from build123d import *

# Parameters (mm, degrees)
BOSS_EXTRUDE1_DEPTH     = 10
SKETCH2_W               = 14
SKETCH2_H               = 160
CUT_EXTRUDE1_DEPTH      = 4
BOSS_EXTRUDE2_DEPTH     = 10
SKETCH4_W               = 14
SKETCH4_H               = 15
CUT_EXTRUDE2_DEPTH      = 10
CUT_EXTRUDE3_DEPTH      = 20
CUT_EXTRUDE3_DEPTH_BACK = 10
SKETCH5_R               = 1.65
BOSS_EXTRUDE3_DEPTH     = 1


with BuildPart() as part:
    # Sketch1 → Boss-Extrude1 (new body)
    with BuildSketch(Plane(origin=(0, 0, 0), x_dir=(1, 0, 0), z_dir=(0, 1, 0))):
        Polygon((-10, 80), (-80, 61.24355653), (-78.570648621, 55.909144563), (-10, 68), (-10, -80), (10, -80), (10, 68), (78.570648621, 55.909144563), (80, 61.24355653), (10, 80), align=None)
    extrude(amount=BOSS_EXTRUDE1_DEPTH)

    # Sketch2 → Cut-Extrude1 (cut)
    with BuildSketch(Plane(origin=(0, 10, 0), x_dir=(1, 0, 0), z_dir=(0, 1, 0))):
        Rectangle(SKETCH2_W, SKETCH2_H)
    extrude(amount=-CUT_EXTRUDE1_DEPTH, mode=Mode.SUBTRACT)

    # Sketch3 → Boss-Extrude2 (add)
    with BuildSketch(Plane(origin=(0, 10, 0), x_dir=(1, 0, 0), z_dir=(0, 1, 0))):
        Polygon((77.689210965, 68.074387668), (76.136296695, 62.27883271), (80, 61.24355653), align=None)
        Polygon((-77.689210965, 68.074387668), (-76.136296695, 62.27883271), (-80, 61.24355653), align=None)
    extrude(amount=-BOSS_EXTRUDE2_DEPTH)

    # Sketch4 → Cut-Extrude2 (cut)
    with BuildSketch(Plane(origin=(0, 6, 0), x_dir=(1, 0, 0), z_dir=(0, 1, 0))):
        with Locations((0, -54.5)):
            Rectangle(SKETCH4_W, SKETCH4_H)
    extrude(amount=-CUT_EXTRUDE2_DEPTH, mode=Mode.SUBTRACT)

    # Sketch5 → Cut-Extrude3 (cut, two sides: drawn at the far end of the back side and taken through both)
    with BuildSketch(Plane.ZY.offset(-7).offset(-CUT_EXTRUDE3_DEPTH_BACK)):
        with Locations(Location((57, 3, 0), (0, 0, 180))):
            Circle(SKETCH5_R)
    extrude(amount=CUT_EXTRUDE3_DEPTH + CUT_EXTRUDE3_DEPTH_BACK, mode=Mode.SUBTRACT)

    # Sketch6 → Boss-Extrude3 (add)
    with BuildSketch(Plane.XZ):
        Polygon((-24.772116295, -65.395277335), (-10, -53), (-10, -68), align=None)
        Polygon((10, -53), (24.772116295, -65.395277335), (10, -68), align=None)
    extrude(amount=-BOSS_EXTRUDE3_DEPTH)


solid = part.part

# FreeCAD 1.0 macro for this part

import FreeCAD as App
import Part
import Sketcher
Q = App.Units.Quantity

doc = App.newDocument("Part")
params = doc.addObject("Spreadsheet::Sheet", "Params")
for row, (alias, value) in enumerate([
    ("sketch1_width", "20 mm"),
    ("sketch1_height", "148 mm"),
    ("pad1_length", "10 mm"),
    ("sketch2_width", "14 mm"),
    ("sketch2_height", "160 mm"),
    ("pocket1_length", "4 mm"),
    ("sketch3_length", "6 mm"),
    ("sketch3_length2", "4 mm"),
    ("pad2_length", "10 mm"),
    ("sketch4_width", "14 mm"),
    ("sketch4_height", "15 mm"),
    ("pocket2_length", "10 mm"),
    ("sketch5_diameter", "3.3 mm"),
    ("sketch6_height", "15 mm"),
    ("pad3_length", "1 mm"),
], start=1):
    params.set(f"A{row}", alias)
    params.set(f"B{row}", "=" + value)
    params.setAlias(f"B{row}", alias)

body = doc.addObject("PartDesign::Body", "Body")

# Sketch on XZ plane
sketch1 = body.newObject("Sketcher::SketchObject", "Sketch")
sketch1.AttachmentSupport = (doc.getObject("XZ_Plane"), [""])
sketch1.MapMode = "FlatFace"
sketch1.addGeometry([
    Part.LineSegment(App.Vector(-10, -80, 0), App.Vector(-80, -61, 0)),  # 0
    Part.LineSegment(App.Vector(-80, -61, 0), App.Vector(-79, -56, 0)),  # 1
    Part.LineSegment(App.Vector(-79, -56, 0), App.Vector(-10, -68, 0)),  # 2
    Part.LineSegment(App.Vector(-10, -68, 0), App.Vector(-10, 80, 0)),  # 3
    Part.LineSegment(App.Vector(-10, 80, 0), App.Vector(10, 80, 0)),  # 4
    Part.LineSegment(App.Vector(10, 80, 0), App.Vector(10, -68, 0)),  # 5
    Part.LineSegment(App.Vector(10, -68, 0), App.Vector(79, -56, 0)),  # 6
    Part.LineSegment(App.Vector(79, -56, 0), App.Vector(80, -61, 0)),  # 7
    Part.LineSegment(App.Vector(80, -61, 0), App.Vector(10, -80, 0)),  # 8
    Part.LineSegment(App.Vector(10, -80, 0), App.Vector(-10, -80, 0)),  # 9
], False)
sketch1.addConstraint([
    Sketcher.Constraint("Coincident", 0, 2, 1, 1),
    Sketcher.Constraint("Coincident", 1, 2, 2, 1),
    Sketcher.Constraint("Coincident", 2, 2, 3, 1),
    Sketcher.Constraint("Coincident", 3, 2, 4, 1),
    Sketcher.Constraint("Coincident", 4, 2, 5, 1),
    Sketcher.Constraint("Coincident", 5, 2, 6, 1),
    Sketcher.Constraint("Coincident", 6, 2, 7, 1),
    Sketcher.Constraint("Coincident", 7, 2, 8, 1),
    Sketcher.Constraint("Coincident", 8, 2, 9, 1),
    Sketcher.Constraint("Coincident", 9, 2, 0, 1),
    Sketcher.Constraint("Vertical", 3),
    Sketcher.Constraint("Horizontal", 4),
    Sketcher.Constraint("Vertical", 5),
    Sketcher.Constraint("Horizontal", 9),
    Sketcher.Constraint("Symmetric", 3, 2, 8, 2, -1, 1),
    Sketcher.Constraint("Symmetric", 2, 2, 5, 2, -2),
    Sketcher.Constraint("Symmetric", 1, 2, 6, 2, -2),
    Sketcher.Constraint("Symmetric", 0, 2, 7, 2, -2),
    Sketcher.Constraint("Perpendicular", 0, 1),
    Sketcher.Constraint("Perpendicular", 7, 8),
    Sketcher.Constraint("DistanceX", 4, 1, 4, 2, 20.0),
    Sketcher.Constraint("DistanceY", 3, 1, 3, 2, 148.0),
    Sketcher.Constraint("Angle", 0, Q("165 deg")),
    Sketcher.Constraint("Angle", 2, Q("-10 deg")),
    Sketcher.Constraint("DistanceX", 0, 2, -1, 1, 80.0),
    Sketcher.Constraint("DistanceY", 2, 2, -1, 1, 68.0),
])
sketch1.setExpression("Constraints[20]", "Params.sketch1_width")
sketch1.setExpression("Constraints[21]", "Params.sketch1_height")
pad1 = body.newObject("PartDesign::Pad", "Pad")
pad1.Profile = sketch1
pad1.setExpression("Length", "Params.pad1_length")
pad1.Reversed = True

# Sketch on XZ plane
sketch2 = body.newObject("Sketcher::SketchObject", "Sketch001")
sketch2.AttachmentSupport = (doc.getObject("XZ_Plane"), [""])
sketch2.MapMode = "FlatFace"
sketch2.AttachmentOffset = App.Placement(App.Vector(0, 0, -10), App.Rotation())
sketch2.addGeometry([
    Part.LineSegment(App.Vector(-7, -80, 0), App.Vector(-7, 80, 0)),
    Part.LineSegment(App.Vector(-7, 80, 0), App.Vector(7, 80, 0)),
    Part.LineSegment(App.Vector(7, 80, 0), App.Vector(7, -80, 0)),
    Part.LineSegment(App.Vector(7, -80, 0), App.Vector(-7, -80, 0)),
], False)
sketch2.addConstraint([
    Sketcher.Constraint("Coincident", 0, 2, 1, 1),
    Sketcher.Constraint("Coincident", 1, 2, 2, 1),
    Sketcher.Constraint("Coincident", 2, 2, 3, 1),
    Sketcher.Constraint("Coincident", 3, 2, 0, 1),
    Sketcher.Constraint("Vertical", 0),
    Sketcher.Constraint("Horizontal", 1),
    Sketcher.Constraint("Vertical", 2),
    Sketcher.Constraint("Horizontal", 3),
    Sketcher.Constraint("Symmetric", 0, 2, 2, 2, -1, 1),
    Sketcher.Constraint("DistanceX", 1, 1, 1, 2, 14.0),
    Sketcher.Constraint("DistanceY", 0, 1, 0, 2, 160.0),
])
sketch2.setExpression("Constraints[9]", "Params.sketch2_width")
sketch2.setExpression("Constraints[10]", "Params.sketch2_height")
pocket1 = body.newObject("PartDesign::Pocket", "Pocket")
pocket1.Profile = sketch2
pocket1.setExpression("Length", "Params.pocket1_length")
pocket1.Reversed = True

# Sketch on XZ plane
sketch3 = body.newObject("Sketcher::SketchObject", "Sketch002")
sketch3.AttachmentSupport = (doc.getObject("XZ_Plane"), [""])
sketch3.MapMode = "FlatFace"
sketch3.AttachmentOffset = App.Placement(App.Vector(0, 0, -10), App.Rotation())
sketch3.addGeometry([
    Part.LineSegment(App.Vector(77.7, -68.1, 0), App.Vector(76.1, -62.3, 0)),  # 0
    Part.LineSegment(App.Vector(76.1, -62.3, 0), App.Vector(80, -61.2, 0)),  # 1
    Part.LineSegment(App.Vector(80, -61.2, 0), App.Vector(77.7, -68.1, 0)),  # 2
    Part.LineSegment(App.Vector(-76.1, -62.3, 0), App.Vector(-77.7, -68.1, 0)),  # 3
    Part.LineSegment(App.Vector(-77.7, -68.1, 0), App.Vector(-80, -61.2, 0)),  # 4
    Part.LineSegment(App.Vector(-80, -61.2, 0), App.Vector(-76.1, -62.3, 0)),  # 5
], False)
sketch3.addConstraint([
    Sketcher.Constraint("Coincident", 0, 2, 1, 1),
    Sketcher.Constraint("Coincident", 1, 2, 2, 1),
    Sketcher.Constraint("Coincident", 2, 2, 0, 1),
    Sketcher.Constraint("Coincident", 3, 2, 4, 1),
    Sketcher.Constraint("Coincident", 4, 2, 5, 1),
    Sketcher.Constraint("Coincident", 5, 2, 3, 1),
    Sketcher.Constraint("Symmetric", 2, 2, 3, 2, -2),
    Sketcher.Constraint("Symmetric", 1, 2, 4, 2, -2),
    Sketcher.Constraint("Symmetric", 0, 2, 5, 2, -2),
    Sketcher.Constraint("Perpendicular", 0, 1),
    Sketcher.Constraint("Angle", 0, Q("105 deg")),
    Sketcher.Constraint("Distance", 0, 6.0),
    Sketcher.Constraint("Distance", 1, 4.0),
    Sketcher.Constraint("DistanceX", -1, 1, 1, 2, 80.0),
    Sketcher.Constraint("DistanceY", 0, 2, -1, 1, 62.278833),
])
sketch3.setExpression("Constraints[11]", "Params.sketch3_length")
sketch3.setExpression("Constraints[12]", "Params.sketch3_length2")
pad2 = body.newObject("PartDesign::Pad", "Pad001")
pad2.Profile = sketch3
pad2.setExpression("Length", "Params.pad2_length")

# Sketch on XZ plane
sketch4 = body.newObject("Sketcher::SketchObject", "Sketch003")
sketch4.AttachmentSupport = (doc.getObject("XZ_Plane"), [""])
sketch4.MapMode = "FlatFace"
sketch4.AttachmentOffset = App.Placement(App.Vector(0, 0, -6), App.Rotation())
sketch4.addGeometry([
    Part.LineSegment(App.Vector(-7, 47, 0), App.Vector(-7, 62, 0)),
    Part.LineSegment(App.Vector(-7, 62, 0), App.Vector(7, 62, 0)),
    Part.LineSegment(App.Vector(7, 62, 0), App.Vector(7, 47, 0)),
    Part.LineSegment(App.Vector(7, 47, 0), App.Vector(-7, 47, 0)),
], False)
sketch4.addConstraint([
    Sketcher.Constraint("Coincident", 0, 2, 1, 1),
    Sketcher.Constraint("Coincident", 1, 2, 2, 1),
    Sketcher.Constraint("Coincident", 2, 2, 3, 1),
    Sketcher.Constraint("Coincident", 3, 2, 0, 1),
    Sketcher.Constraint("Vertical", 0),
    Sketcher.Constraint("Horizontal", 1),
    Sketcher.Constraint("Vertical", 2),
    Sketcher.Constraint("Horizontal", 3),
    Sketcher.Constraint("DistanceX", 1, 1, 1, 2, 14.0),
    Sketcher.Constraint("DistanceY", 0, 1, 0, 2, 15.0),
    Sketcher.Constraint("DistanceX", 0, 2, -1, 1, 7.0),
    Sketcher.Constraint("DistanceY", -1, 1, 0, 2, 62.0),
])
sketch4.setExpression("Constraints[8]", "Params.sketch4_width")
sketch4.setExpression("Constraints[9]", "Params.sketch4_height")
pocket2 = body.newObject("PartDesign::Pocket", "Pocket001")
pocket2.Profile = sketch4
pocket2.setExpression("Length", "Params.pocket2_length")
pocket2.Reversed = True

# Sketch on YZ plane
sketch5 = body.newObject("Sketcher::SketchObject", "Sketch004")
sketch5.AttachmentSupport = (doc.getObject("YZ_Plane"), [""])
sketch5.MapMode = "FlatFace"
sketch5.AttachmentOffset = App.Placement(App.Vector(0, 0, 7), App.Rotation())
sketch5.addGeometry(Part.Circle(App.Vector(3, 57, 0), App.Vector(0, 0, 1), 1.6), False)
sketch5.addConstraint([
    Sketcher.Constraint("Diameter", 0, 3.3),
    Sketcher.Constraint("DistanceX", -1, 1, 0, 3, 3.0),
    Sketcher.Constraint("DistanceY", -1, 1, 0, 3, 57.0),
])
sketch5.setExpression("Constraints[0]", "Params.sketch5_diameter")
pocket3 = body.newObject("PartDesign::Pocket", "Pocket002")
pocket3.Profile = sketch5
pocket3.Type = "ThroughAll"
pocket3.Midplane = True

# Sketch on XZ plane
sketch6 = body.newObject("Sketcher::SketchObject", "Sketch005")
sketch6.AttachmentSupport = (doc.getObject("XZ_Plane"), [""])
sketch6.MapMode = "FlatFace"
sketch6.addGeometry([
    Part.LineSegment(App.Vector(-10, -53, 0), App.Vector(-25, -65, 0)),  # 0
    Part.LineSegment(App.Vector(-25, -65, 0), App.Vector(-10, -68, 0)),  # 1
    Part.LineSegment(App.Vector(-10, -68, 0), App.Vector(-10, -53, 0)),  # 2
    Part.LineSegment(App.Vector(25, -65, 0), App.Vector(10, -53, 0)),  # 3
    Part.LineSegment(App.Vector(10, -53, 0), App.Vector(10, -68, 0)),  # 4
    Part.LineSegment(App.Vector(10, -68, 0), App.Vector(25, -65, 0)),  # 5
], False)
sketch6.addConstraint([
    Sketcher.Constraint("Coincident", 0, 2, 1, 1),
    Sketcher.Constraint("Coincident", 1, 2, 2, 1),
    Sketcher.Constraint("Coincident", 2, 2, 0, 1),
    Sketcher.Constraint("Coincident", 3, 2, 4, 1),
    Sketcher.Constraint("Coincident", 4, 2, 5, 1),
    Sketcher.Constraint("Coincident", 5, 2, 3, 1),
    Sketcher.Constraint("Vertical", 2),
    Sketcher.Constraint("Vertical", 4),
    Sketcher.Constraint("Symmetric", 2, 2, 3, 2, -2),
    Sketcher.Constraint("Symmetric", 0, 2, 5, 2, -2),
    Sketcher.Constraint("Horizontal", 1, 2, 4, 2),
    Sketcher.Constraint("DistanceY", 2, 1, 2, 2, 15.0),
    Sketcher.Constraint("Angle", 0, Q("-140 deg")),
    Sketcher.Constraint("Angle", 1, Q("-10 deg")),
    Sketcher.Constraint("DistanceX", 1, 2, -1, 1, 10.0),
    Sketcher.Constraint("DistanceY", 1, 2, -1, 1, 68.0),
])
sketch6.setExpression("Constraints[11]", "Params.sketch6_height")
pad3 = body.newObject("PartDesign::Pad", "Pad002")
pad3.Profile = sketch6
pad3.setExpression("Length", "Params.pad3_length")
pad3.Reversed = True

doc.recompute()
